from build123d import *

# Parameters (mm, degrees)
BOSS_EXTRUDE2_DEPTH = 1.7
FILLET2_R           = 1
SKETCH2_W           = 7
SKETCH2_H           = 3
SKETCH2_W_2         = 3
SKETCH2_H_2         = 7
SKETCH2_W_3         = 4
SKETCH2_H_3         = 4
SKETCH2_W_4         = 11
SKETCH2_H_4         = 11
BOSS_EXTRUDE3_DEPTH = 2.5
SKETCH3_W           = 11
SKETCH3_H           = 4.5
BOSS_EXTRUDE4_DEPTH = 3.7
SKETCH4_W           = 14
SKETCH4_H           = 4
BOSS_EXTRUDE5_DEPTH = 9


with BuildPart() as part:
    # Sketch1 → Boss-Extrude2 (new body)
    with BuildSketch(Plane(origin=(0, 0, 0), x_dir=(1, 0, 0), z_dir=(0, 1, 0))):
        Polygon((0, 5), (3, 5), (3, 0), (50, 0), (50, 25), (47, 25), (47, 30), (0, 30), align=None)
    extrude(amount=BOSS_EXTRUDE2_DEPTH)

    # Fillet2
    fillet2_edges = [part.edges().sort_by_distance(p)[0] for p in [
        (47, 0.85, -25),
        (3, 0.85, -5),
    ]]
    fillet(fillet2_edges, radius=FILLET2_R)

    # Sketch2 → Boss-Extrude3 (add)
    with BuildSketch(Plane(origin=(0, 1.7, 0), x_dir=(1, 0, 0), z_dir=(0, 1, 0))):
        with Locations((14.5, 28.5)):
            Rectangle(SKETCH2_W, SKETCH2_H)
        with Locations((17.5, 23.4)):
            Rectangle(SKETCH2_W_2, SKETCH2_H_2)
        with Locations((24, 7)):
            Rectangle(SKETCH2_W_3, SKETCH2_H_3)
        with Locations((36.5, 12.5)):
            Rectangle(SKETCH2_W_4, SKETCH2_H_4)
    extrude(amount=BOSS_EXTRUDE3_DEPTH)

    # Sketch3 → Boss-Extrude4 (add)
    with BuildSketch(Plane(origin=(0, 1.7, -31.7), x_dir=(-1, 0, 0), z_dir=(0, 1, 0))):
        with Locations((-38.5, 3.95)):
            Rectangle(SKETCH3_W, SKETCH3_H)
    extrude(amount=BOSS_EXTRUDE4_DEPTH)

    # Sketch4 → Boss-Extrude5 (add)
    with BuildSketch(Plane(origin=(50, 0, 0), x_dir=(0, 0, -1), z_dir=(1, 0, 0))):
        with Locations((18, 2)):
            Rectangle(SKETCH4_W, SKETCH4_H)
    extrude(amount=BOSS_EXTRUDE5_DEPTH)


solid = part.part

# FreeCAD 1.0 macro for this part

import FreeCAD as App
import Part
import Sketcher

V = App.Vector
Q = App.Units.Quantity


def edges_at(feature, points):
    """Names of the edges that pass closest to the given points."""
    edges = feature.Shape.Edges
    near = lambda p: min(range(len(edges)), key=lambda i: edges[i].distToShape(Part.Vertex(*p))[0])
    return sorted({f"Edge{near(p) + 1}" for p in points})

doc = App.newDocument("Part")
params = doc.addObject("Spreadsheet::Sheet", "Params")
for row, (alias, value) in enumerate([
    ("sketch1_width", "3 mm"),
    ("sketch1_width2", "47 mm"),
    ("sketch1_height", "5 mm"),
    ("sketch1_height2", "25 mm"),
    ("pad1_length", "1.7 mm"),
    ("fillet_radius", "1 mm"),
    ("sketch2_width", "7 mm"),
    ("sketch2_width2", "3 mm"),
    ("sketch2_width3", "4 mm"),
    ("sketch2_width4", "11 mm"),
    ("pad2_length", "2.5 mm"),
    ("sketch3_width", "11 mm"),
    ("sketch3_height", "4.5 mm"),
    ("pad3_length", "3.7 mm"),
    ("sketch4_width", "4 mm"),
    ("sketch4_height", "14 mm"),
    ("pad4_length", "9 mm"),
], start=1):
    params.set(f"A{row}", alias)
    params.set(f"B{row}", "=" + value)
    params.setAlias(f"B{row}", alias)

body = doc.addObject("PartDesign::Body", "Body")

# Sketch on XZ plane
sketch1 = body.newObject("Sketcher::SketchObject", "Sketch")
sketch1.AttachmentSupport = (doc.getObject("XZ_Plane"), [""])
sketch1.MapMode = "FlatFace"
sketch1.addGeometry([
    Part.LineSegment(V(0, -5, 0), V(3, -5, 0)),  # 0
    Part.LineSegment(V(3, -5, 0), V(3, 0, 0)),  # 1
    Part.LineSegment(V(3, 0, 0), V(50, 0, 0)),  # 2
    Part.LineSegment(V(50, 0, 0), V(50, -25, 0)),  # 3
    Part.LineSegment(V(50, -25, 0), V(47, -25, 0)),  # 4
    Part.LineSegment(V(47, -25, 0), V(47, -30, 0)),  # 5
    Part.LineSegment(V(47, -30, 0), V(0, -30, 0)),  # 6
    Part.LineSegment(V(0, -30, 0), V(0, -5, 0)),  # 7
], False)
sketch1.addConstraint([
    Sketcher.Constraint("Coincident", 0, 2, 1, 1),
    Sketcher.Constraint("Coincident", 1, 2, 2, 1),
    Sketcher.Constraint("Coincident", 2, 2, 3, 1),
    Sketcher.Constraint("Coincident", 3, 2, 4, 1),
    Sketcher.Constraint("Coincident", 4, 2, 5, 1),
    Sketcher.Constraint("Coincident", 5, 2, 6, 1),
    Sketcher.Constraint("Coincident", 6, 2, 7, 1),
    Sketcher.Constraint("Coincident", 7, 2, 0, 1),
    Sketcher.Constraint("Horizontal", 0),
    Sketcher.Constraint("Vertical", 1),
    Sketcher.Constraint("Horizontal", 2),
    Sketcher.Constraint("Vertical", 3),
    Sketcher.Constraint("Horizontal", 4),
    Sketcher.Constraint("Vertical", 5),
    Sketcher.Constraint("Horizontal", 6),
    Sketcher.Constraint("Vertical", 7),
    Sketcher.Constraint("PointOnObject", 1, 2, -1),
    Sketcher.Constraint("PointOnObject", 6, 2, -2),
    Sketcher.Constraint("Equal", 0, 4),
    Sketcher.Constraint("Equal", 1, 5),
    Sketcher.Constraint("DistanceX", 0, 1, 0, 2, Q("3 mm")),
    Sketcher.Constraint("DistanceX", 2, 1, 2, 2, Q("47 mm")),
    Sketcher.Constraint("DistanceY", 1, 1, 1, 2, Q("5 mm")),
    Sketcher.Constraint("DistanceY", 3, 2, 3, 1, Q("25 mm")),
])
sketch1.setExpression("Constraints[20]", "Params.sketch1_width")
sketch1.setExpression("Constraints[21]", "Params.sketch1_width2")
sketch1.setExpression("Constraints[22]", "Params.sketch1_height")
sketch1.setExpression("Constraints[23]", "Params.sketch1_height2")
pad1 = body.newObject("PartDesign::Pad", "Pad")
pad1.Profile = sketch1
pad1.setExpression("Length", "Params.pad1_length")
pad1.Reversed = True
doc.recompute()

fillet = body.newObject("PartDesign::Fillet", "Fillet")
fillet.Base = (pad1, edges_at(pad1, [(47, 0.85, -25), (3, 0.85, -5)]))
fillet.setExpression("Radius", "Params.fillet_radius")

# Sketch on XZ plane
sketch2 = body.newObject("Sketcher::SketchObject", "Sketch001")
sketch2.AttachmentSupport = (doc.getObject("XZ_Plane"), [""])
sketch2.MapMode = "FlatFace"
sketch2.AttachmentOffset = App.Placement(V(0, 0, -1.7), App.Rotation())
sketch2.addGeometry([
    Part.LineSegment(V(11, -30, 0), V(11, -27, 0)),  # 0
    Part.LineSegment(V(11, -27, 0), V(18, -27, 0)),  # 1
    Part.LineSegment(V(18, -27, 0), V(18, -30, 0)),  # 2
    Part.LineSegment(V(18, -30, 0), V(11, -30, 0)),  # 3
    Part.LineSegment(V(16, -26.9, 0), V(16, -19.9, 0)),  # 4
    Part.LineSegment(V(16, -19.9, 0), V(19, -19.9, 0)),  # 5
    Part.LineSegment(V(19, -19.9, 0), V(19, -26.9, 0)),  # 6
    Part.LineSegment(V(19, -26.9, 0), V(16, -26.9, 0)),  # 7
    Part.LineSegment(V(22, -9, 0), V(22, -5, 0)),  # 8
    Part.LineSegment(V(22, -5, 0), V(26, -5, 0)),  # 9
    Part.LineSegment(V(26, -5, 0), V(26, -9, 0)),  # 10
    Part.LineSegment(V(26, -9, 0), V(22, -9, 0)),  # 11
    Part.LineSegment(V(31, -18, 0), V(31, -7, 0)),  # 12
    Part.LineSegment(V(31, -7, 0), V(42, -7, 0)),  # 13
    Part.LineSegment(V(42, -7, 0), V(42, -18, 0)),  # 14
    Part.LineSegment(V(42, -18, 0), V(31, -18, 0)),  # 15
], False)
sketch2.addConstraint([
    Sketcher.Constraint("Coincident", 0, 2, 1, 1),
    Sketcher.Constraint("Coincident", 1, 2, 2, 1),
    Sketcher.Constraint("Coincident", 2, 2, 3, 1),
    Sketcher.Constraint("Coincident", 3, 2, 0, 1),
    Sketcher.Constraint("Coincident", 4, 2, 5, 1),
    Sketcher.Constraint("Coincident", 5, 2, 6, 1),
    Sketcher.Constraint("Coincident", 6, 2, 7, 1),
    Sketcher.Constraint("Coincident", 7, 2, 4, 1),
    Sketcher.Constraint("Coincident", 8, 2, 9, 1),
    Sketcher.Constraint("Coincident", 9, 2, 10, 1),
    Sketcher.Constraint("Coincident", 10, 2, 11, 1),
    Sketcher.Constraint("Coincident", 11, 2, 8, 1),
    Sketcher.Constraint("Coincident", 12, 2, 13, 1),
    Sketcher.Constraint("Coincident", 13, 2, 14, 1),
    Sketcher.Constraint("Coincident", 14, 2, 15, 1),
    Sketcher.Constraint("Coincident", 15, 2, 12, 1),
    Sketcher.Constraint("Vertical", 0),
    Sketcher.Constraint("Horizontal", 1),
    Sketcher.Constraint("Vertical", 2),
    Sketcher.Constraint("Horizontal", 3),
    Sketcher.Constraint("Vertical", 4),
    Sketcher.Constraint("Horizontal", 5),
    Sketcher.Constraint("Vertical", 6),
    Sketcher.Constraint("Horizontal", 7),
    Sketcher.Constraint("Vertical", 8),
    Sketcher.Constraint("Horizontal", 9),
    Sketcher.Constraint("Vertical", 10),
    Sketcher.Constraint("Horizontal", 11),
    Sketcher.Constraint("Vertical", 12),
    Sketcher.Constraint("Horizontal", 13),
    Sketcher.Constraint("Vertical", 14),
    Sketcher.Constraint("Horizontal", 15),
    Sketcher.Constraint("Equal", 7, 0),
    Sketcher.Constraint("Equal", 3, 4),
    Sketcher.Constraint("Equal", 11, 8),
    Sketcher.Constraint("Equal", 15, 12),
    Sketcher.Constraint("DistanceX", 1, 1, 1, 2, Q("7 mm")),
    Sketcher.Constraint("DistanceX", 5, 1, 5, 2, Q("3 mm")),
    Sketcher.Constraint("DistanceX", 9, 1, 9, 2, Q("4 mm")),
    Sketcher.Constraint("DistanceX", 13, 1, 13, 2, Q("11 mm")),
    Sketcher.Constraint("DistanceX", -1, 1, 0, 2, Q("11 mm")),
    Sketcher.Constraint("DistanceY", 0, 2, -1, 1, Q("27 mm")),
    Sketcher.Constraint("DistanceX", -1, 1, 4, 2, Q("16 mm")),
    Sketcher.Constraint("DistanceX", -1, 1, 8, 2, Q("22 mm")),
    Sketcher.Constraint("DistanceY", 8, 2, -1, 1, Q("5 mm")),
    Sketcher.Constraint("DistanceX", -1, 1, 12, 2, Q("31 mm")),
    Sketcher.Constraint("DistanceY", 12, 2, -1, 1, Q("7 mm")),
    Sketcher.Constraint("DistanceY", 4, 2, -1, 1, Q("19.9 mm")),
])
sketch2.setExpression("Constraints[36]", "Params.sketch2_width")
sketch2.setExpression("Constraints[37]", "Params.sketch2_width2")
sketch2.setExpression("Constraints[38]", "Params.sketch2_width3")
sketch2.setExpression("Constraints[39]", "Params.sketch2_width4")
pad2 = body.newObject("PartDesign::Pad", "Pad001")
pad2.Profile = sketch2
pad2.setExpression("Length", "Params.pad2_length")
pad2.Reversed = True

# Sketch on XZ plane
sketch3 = body.newObject("Sketcher::SketchObject", "Sketch002")
sketch3.AttachmentSupport = (doc.getObject("XZ_Plane"), [""])
sketch3.MapMode = "FlatFace"
sketch3.AttachmentOffset = App.Placement(V(0, 0, -1.7), App.Rotation())
sketch3.addGeometry([
    Part.LineSegment(V(44, -25.5, 0), V(44, -30, 0)),
    Part.LineSegment(V(44, -30, 0), V(33, -30, 0)),
    Part.LineSegment(V(33, -30, 0), V(33, -25.5, 0)),
    Part.LineSegment(V(33, -25.5, 0), V(44, -25.5, 0)),
], False)
sketch3.addConstraint([
    Sketcher.Constraint("Coincident", 0, 2, 1, 1),
    Sketcher.Constraint("Coincident", 1, 2, 2, 1),
    Sketcher.Constraint("Coincident", 2, 2, 3, 1),
    Sketcher.Constraint("Coincident", 3, 2, 0, 1),
    Sketcher.Constraint("Vertical", 0),
    Sketcher.Constraint("Horizontal", 1),
    Sketcher.Constraint("Vertical", 2),
    Sketcher.Constraint("Horizontal", 3),
    Sketcher.Constraint("DistanceX", 1, 2, 1, 1, Q("11 mm")),
    Sketcher.Constraint("DistanceY", 0, 2, 0, 1, Q("4.5 mm")),
    Sketcher.Constraint("DistanceX", -1, 1, 0, 2, Q("44 mm")),
    Sketcher.Constraint("DistanceY", 0, 2, -1, 1, Q("30 mm")),
])
sketch3.setExpression("Constraints[8]", "Params.sketch3_width")
sketch3.setExpression("Constraints[9]", "Params.sketch3_height")
pad3 = body.newObject("PartDesign::Pad", "Pad002")
pad3.Profile = sketch3
pad3.setExpression("Length", "Params.pad3_length")
pad3.Reversed = True

# Sketch on YZ plane
sketch4 = body.newObject("Sketcher::SketchObject", "Sketch003")
sketch4.AttachmentSupport = (doc.getObject("YZ_Plane"), [""])
sketch4.MapMode = "FlatFace"
sketch4.AttachmentOffset = App.Placement(V(0, 0, 50), App.Rotation())
sketch4.addGeometry([
    Part.LineSegment(V(4, -11, 0), V(0, -11, 0)),
    Part.LineSegment(V(0, -11, 0), V(0, -25, 0)),
    Part.LineSegment(V(0, -25, 0), V(4, -25, 0)),
    Part.LineSegment(V(4, -25, 0), V(4, -11, 0)),
], False)
sketch4.addConstraint([
    Sketcher.Constraint("Coincident", 0, 2, 1, 1),
    Sketcher.Constraint("Coincident", 1, 2, 2, 1),
    Sketcher.Constraint("Coincident", 2, 2, 3, 1),
    Sketcher.Constraint("Coincident", 3, 2, 0, 1),
    Sketcher.Constraint("Horizontal", 0),
    Sketcher.Constraint("Vertical", 1),
    Sketcher.Constraint("Horizontal", 2),
    Sketcher.Constraint("Vertical", 3),
    Sketcher.Constraint("PointOnObject", 0, 2, -2),
    Sketcher.Constraint("DistanceX", 0, 2, 0, 1, Q("4 mm")),
    Sketcher.Constraint("DistanceY", 1, 2, 1, 1, Q("14 mm")),
    Sketcher.Constraint("DistanceY", 0, 2, -1, 1, Q("11 mm")),
])
sketch4.setExpression("Constraints[9]", "Params.sketch4_width")
sketch4.setExpression("Constraints[10]", "Params.sketch4_height")
pad4 = body.newObject("PartDesign::Pad", "Pad003")
pad4.Profile = sketch4
pad4.setExpression("Length", "Params.pad4_length")

doc.recompute()
